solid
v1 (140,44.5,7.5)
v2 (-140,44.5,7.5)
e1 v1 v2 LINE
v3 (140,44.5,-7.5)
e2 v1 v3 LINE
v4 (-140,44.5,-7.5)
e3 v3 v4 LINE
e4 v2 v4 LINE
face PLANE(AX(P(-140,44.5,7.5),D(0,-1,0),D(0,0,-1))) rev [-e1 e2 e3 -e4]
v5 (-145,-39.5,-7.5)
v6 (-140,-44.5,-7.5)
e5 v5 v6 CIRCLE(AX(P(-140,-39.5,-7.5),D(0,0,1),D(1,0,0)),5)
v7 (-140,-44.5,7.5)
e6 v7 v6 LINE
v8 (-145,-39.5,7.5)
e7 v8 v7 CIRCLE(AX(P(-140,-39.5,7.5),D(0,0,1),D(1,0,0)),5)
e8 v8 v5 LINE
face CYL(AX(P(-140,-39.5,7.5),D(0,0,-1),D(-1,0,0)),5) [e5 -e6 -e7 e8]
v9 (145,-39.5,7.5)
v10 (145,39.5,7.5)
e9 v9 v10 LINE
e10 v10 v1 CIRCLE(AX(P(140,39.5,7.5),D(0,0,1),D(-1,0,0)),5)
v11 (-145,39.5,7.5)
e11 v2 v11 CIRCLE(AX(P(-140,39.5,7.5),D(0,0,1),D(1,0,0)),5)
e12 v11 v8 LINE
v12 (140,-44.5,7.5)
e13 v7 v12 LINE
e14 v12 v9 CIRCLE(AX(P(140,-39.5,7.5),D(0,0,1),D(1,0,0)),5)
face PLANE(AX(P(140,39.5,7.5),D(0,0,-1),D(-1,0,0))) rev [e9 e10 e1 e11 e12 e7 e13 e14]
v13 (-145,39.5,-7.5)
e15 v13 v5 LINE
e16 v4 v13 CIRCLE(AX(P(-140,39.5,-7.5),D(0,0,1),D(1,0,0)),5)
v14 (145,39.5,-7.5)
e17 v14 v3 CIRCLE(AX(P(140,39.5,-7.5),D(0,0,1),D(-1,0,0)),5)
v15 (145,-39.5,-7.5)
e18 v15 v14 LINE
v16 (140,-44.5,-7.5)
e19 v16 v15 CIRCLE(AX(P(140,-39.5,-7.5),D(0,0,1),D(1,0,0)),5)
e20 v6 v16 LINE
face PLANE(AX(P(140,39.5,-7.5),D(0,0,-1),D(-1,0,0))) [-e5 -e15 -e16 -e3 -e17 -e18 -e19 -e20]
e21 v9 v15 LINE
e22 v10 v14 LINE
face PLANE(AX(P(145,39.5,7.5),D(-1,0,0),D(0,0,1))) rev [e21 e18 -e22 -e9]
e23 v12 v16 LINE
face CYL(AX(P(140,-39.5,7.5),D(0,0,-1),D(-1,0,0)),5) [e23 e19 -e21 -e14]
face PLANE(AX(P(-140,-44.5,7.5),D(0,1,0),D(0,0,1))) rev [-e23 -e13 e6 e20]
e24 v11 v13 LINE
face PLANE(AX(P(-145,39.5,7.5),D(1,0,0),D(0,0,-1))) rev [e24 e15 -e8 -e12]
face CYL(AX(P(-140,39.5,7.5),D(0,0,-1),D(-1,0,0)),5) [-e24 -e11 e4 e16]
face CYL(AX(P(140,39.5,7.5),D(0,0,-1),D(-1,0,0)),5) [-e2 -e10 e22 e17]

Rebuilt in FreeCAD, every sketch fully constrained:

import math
import FreeCAD as App
import Part
import Sketcher

V = App.Vector

doc = App.newDocument("Part")
body = doc.addObject("PartDesign::Body", "Body")

sketch1 = body.newObject("Sketcher::SketchObject", "Sketch")
sketch1.AttachmentSupport = (doc.getObject("XY_Plane"), [""])
sketch1.MapMode = "FlatFace"
sketch1.addGeometry([
    Part.LineSegment(V(140, 44, 0), V(-140, 44, 0)),
    Part.ArcOfCircle(Part.Circle(V(-140, 40, 0), V(0, 0, 1), 5), math.radians(90), math.radians(180)),
    Part.LineSegment(V(-145, 40, 0), V(-145, -40, 0)),
    Part.ArcOfCircle(Part.Circle(V(-140, -40, 0), V(0, 0, 1), 5), math.radians(180), math.radians(270)),
    Part.LineSegment(V(-140, -44, 0), V(140, -44, 0)),
    Part.ArcOfCircle(Part.Circle(V(140, -40, 0), V(0, 0, 1), 5), math.radians(-90), math.radians(0)),
    Part.LineSegment(V(145, -40, 0), V(145, 40, 0)),
    Part.ArcOfCircle(Part.Circle(V(140, 40, 0), V(0, 0, 1), 5), math.radians(0), math.radians(90)),
], False)
sketch1.addConstraint([
    Sketcher.Constraint("Tangent", 0, 2, 1, 1),
    Sketcher.Constraint("Tangent", 1, 2, 2, 1),
    Sketcher.Constraint("Tangent", 2, 2, 3, 1),
    Sketcher.Constraint("Tangent", 3, 2, 4, 1),
    Sketcher.Constraint("Tangent", 4, 2, 5, 1),
    Sketcher.Constraint("Tangent", 5, 2, 6, 1),
    Sketcher.Constraint("Tangent", 6, 2, 7, 1),
    Sketcher.Constraint("Tangent", 7, 2, 0, 1),
    Sketcher.Constraint("Horizontal", 0),
    Sketcher.Constraint("Vertical", 2),
    Sketcher.Constraint("Horizontal", 4),
    Sketcher.Constraint("Vertical", 6),
    Sketcher.Constraint("Equal", 1, 3),
    Sketcher.Constraint("Equal", 3, 5),
    Sketcher.Constraint("Equal", 5, 7),
    Sketcher.Constraint("Symmetric", 1, 3, 5, 3, -1, 1),
    Sketcher.Constraint("Radius", 1, 5.0),
    Sketcher.Constraint("DistanceX", 0, 2, 0, 1, 280.0),
    Sketcher.Constraint("DistanceY", 2, 2, 2, 1, 79.0),
])
pad1 = body.newObject("PartDesign::Pad", "Pad")
pad1.Profile = sketch1
pad1.Length = 15
pad1.Midplane = True

doc.recompute()
